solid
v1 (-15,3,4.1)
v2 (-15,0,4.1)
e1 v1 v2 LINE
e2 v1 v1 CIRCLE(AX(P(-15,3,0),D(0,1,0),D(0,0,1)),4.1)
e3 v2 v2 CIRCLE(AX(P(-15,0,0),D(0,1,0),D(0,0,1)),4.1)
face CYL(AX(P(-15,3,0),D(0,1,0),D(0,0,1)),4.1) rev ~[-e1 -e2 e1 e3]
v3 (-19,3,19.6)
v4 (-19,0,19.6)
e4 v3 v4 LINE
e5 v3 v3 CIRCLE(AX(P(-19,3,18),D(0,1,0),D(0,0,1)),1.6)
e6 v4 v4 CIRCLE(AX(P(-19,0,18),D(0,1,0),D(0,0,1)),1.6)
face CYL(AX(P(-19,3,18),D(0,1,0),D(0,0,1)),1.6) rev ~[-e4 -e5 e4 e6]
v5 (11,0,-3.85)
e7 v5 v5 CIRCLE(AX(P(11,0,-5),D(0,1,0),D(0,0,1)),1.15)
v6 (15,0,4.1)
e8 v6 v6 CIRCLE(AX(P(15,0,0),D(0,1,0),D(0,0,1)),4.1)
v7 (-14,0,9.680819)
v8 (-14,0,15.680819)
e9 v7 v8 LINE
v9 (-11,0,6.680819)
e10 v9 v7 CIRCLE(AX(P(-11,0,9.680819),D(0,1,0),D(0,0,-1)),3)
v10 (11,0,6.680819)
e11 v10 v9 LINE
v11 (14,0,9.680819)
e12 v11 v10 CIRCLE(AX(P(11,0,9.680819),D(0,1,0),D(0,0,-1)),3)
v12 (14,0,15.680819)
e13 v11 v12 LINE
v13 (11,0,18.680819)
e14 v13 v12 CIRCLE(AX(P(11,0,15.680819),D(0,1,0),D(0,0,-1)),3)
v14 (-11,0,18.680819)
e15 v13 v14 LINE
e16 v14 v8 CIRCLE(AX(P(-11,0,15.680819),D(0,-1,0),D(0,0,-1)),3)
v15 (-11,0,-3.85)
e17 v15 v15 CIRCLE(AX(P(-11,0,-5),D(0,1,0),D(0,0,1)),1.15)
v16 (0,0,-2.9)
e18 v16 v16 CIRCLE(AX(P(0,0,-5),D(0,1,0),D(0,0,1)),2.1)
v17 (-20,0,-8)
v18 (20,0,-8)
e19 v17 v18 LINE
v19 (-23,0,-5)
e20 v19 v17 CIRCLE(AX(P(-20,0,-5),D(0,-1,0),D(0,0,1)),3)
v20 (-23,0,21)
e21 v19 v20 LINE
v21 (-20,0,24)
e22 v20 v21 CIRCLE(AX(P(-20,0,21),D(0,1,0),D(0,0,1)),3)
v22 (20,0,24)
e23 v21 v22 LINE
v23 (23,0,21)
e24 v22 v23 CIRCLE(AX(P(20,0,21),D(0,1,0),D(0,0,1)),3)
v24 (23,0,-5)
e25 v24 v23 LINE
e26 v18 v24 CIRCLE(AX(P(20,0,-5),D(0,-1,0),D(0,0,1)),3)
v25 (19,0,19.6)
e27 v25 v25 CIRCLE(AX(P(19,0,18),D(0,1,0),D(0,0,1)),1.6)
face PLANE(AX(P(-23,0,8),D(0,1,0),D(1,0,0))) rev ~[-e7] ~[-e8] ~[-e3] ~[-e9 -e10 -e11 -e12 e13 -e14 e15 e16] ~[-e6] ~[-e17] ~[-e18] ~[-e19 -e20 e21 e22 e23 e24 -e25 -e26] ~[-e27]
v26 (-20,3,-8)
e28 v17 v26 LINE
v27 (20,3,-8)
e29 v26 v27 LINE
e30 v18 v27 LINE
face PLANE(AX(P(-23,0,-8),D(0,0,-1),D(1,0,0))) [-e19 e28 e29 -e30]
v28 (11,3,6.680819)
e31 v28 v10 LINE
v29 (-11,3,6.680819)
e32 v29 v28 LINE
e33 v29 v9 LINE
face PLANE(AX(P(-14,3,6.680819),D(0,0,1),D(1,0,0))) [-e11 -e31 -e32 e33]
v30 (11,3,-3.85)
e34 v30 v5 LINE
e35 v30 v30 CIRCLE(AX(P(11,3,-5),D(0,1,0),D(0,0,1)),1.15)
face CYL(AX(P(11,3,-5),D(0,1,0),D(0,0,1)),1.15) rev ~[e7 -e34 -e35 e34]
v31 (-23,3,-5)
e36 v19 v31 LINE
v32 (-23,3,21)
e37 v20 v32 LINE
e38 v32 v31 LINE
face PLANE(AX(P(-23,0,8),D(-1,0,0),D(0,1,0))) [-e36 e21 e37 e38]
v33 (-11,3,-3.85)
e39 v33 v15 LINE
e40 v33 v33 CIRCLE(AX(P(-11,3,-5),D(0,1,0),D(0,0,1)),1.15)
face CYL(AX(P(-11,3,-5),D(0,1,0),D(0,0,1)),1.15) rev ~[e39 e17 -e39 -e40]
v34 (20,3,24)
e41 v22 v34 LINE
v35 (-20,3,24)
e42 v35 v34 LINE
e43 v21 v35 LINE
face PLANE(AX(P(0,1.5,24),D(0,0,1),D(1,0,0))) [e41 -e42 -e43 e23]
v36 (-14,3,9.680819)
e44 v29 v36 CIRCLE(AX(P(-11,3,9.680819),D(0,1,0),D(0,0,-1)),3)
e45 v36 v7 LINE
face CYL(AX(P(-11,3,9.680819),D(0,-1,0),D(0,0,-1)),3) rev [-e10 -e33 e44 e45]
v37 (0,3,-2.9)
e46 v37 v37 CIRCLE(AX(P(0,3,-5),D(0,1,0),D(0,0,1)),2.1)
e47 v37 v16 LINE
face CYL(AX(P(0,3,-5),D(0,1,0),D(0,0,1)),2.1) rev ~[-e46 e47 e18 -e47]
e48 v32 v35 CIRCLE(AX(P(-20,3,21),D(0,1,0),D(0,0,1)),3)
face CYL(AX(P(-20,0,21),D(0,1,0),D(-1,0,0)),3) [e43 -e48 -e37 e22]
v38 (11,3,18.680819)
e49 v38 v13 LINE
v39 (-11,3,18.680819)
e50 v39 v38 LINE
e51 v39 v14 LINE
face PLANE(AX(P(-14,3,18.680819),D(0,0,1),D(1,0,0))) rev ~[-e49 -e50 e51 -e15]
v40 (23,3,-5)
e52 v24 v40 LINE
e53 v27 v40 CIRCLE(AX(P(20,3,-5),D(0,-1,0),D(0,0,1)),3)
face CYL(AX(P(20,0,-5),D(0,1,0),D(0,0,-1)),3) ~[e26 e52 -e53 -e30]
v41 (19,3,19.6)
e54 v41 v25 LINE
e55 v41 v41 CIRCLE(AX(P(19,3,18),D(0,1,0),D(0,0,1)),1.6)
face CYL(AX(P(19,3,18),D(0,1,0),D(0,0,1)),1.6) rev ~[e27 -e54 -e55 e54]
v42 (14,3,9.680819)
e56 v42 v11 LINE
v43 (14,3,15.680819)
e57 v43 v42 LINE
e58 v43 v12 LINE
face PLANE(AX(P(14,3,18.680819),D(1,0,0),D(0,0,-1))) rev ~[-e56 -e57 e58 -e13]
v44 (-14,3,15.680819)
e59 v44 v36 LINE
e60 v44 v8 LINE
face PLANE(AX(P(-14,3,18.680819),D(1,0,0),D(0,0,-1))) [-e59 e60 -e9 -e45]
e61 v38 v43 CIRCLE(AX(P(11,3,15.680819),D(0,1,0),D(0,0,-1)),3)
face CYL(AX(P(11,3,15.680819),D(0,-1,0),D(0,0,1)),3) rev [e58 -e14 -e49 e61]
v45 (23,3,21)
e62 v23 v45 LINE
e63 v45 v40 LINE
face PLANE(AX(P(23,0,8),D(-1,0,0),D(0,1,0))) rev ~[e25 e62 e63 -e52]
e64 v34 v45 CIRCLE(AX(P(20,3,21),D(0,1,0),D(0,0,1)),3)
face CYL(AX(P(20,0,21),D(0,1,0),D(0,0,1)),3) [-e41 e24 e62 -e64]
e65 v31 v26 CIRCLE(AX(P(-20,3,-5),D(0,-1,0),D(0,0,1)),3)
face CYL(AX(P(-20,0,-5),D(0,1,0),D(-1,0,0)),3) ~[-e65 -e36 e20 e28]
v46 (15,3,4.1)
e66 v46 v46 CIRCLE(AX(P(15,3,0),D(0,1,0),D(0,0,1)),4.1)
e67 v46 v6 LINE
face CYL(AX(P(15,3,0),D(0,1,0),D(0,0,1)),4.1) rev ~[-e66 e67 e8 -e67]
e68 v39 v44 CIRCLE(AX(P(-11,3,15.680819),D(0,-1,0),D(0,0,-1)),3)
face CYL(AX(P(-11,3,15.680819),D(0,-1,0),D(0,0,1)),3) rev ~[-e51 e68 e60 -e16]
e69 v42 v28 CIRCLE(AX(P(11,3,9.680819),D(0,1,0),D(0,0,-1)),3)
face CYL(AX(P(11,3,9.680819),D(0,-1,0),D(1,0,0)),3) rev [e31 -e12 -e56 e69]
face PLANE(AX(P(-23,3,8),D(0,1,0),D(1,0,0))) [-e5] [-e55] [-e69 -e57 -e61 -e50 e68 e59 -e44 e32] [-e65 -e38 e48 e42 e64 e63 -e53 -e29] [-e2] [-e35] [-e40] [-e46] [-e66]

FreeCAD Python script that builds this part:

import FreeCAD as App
import Part
import Sketcher
Q = App.Units.Quantity


def edges_at(feature, points):
    """Names of the edges that pass closest to the given points."""
    edges = feature.Shape.Edges
    near = lambda p: min(range(len(edges)), key=lambda i: edges[i].distToShape(Part.Vertex(*p))[0])
    return sorted({f"Edge{near(p) + 1}" for p in points})


def add_polygon(sketch, points):
    """Adds a closed chain of lines whose ends are joined by coincident constraints."""
    first, n = sketch.GeometryCount, len(points)
    for a, b in zip(points, points[1:] + points[:1]):
        sketch.addGeometry(Part.LineSegment(App.Vector(*a, 0), App.Vector(*b, 0)), False)
    for i in range(n):
        sketch.addConstraint(Sketcher.Constraint("Coincident", first + i, 2, first + (i + 1) % n, 1))

doc = App.newDocument("Part")
params = doc.addObject("Spreadsheet::Sheet", "Params")
for row, (alias, value) in enumerate([
    ("sketch1_width", "46 mm"),
    ("sketch1_height", "16 mm"),
    ("pad1_length", "3 mm"),
    ("sketch2_diameter", "8.2 mm"),
    ("sketch3_diameter", "8.2 mm"),
    ("sketch4_width", "46 mm"),
    ("sketch4_height", "3 mm"),
    ("pad2_length", "16 mm"),
    ("sketch5_diameter", "3.2 mm"),
    ("sketch6_diameter", "3.2 mm"),
    ("sketch7_diameter", "2.3 mm"),
    ("sketch8_diameter", "2.3 mm"),
    ("sketch9_diameter", "4.2 mm"),
    ("sketch10_width", "28 mm"),
    ("sketch10_height", "12 mm"),
    ("fillet_radius", "3 mm"),
], start=1):
    params.set(f"A{row}", alias)
    params.set(f"B{row}", "=" + value)
    params.setAlias(f"B{row}", alias)

body = doc.addObject("PartDesign::Body", "Body")

sketch1 = body.newObject("Sketcher::SketchObject", "Sketch")
sketch1.AttachmentSupport = (doc.getObject("XZ_Plane"), [""])
sketch1.MapMode = "FlatFace"
add_polygon(sketch1, [(-23, -8), (-23, 8), (23, 8), (23, -8)])
sketch1.addConstraint([
    Sketcher.Constraint("Vertical", 0),
    Sketcher.Constraint("Horizontal", 1),
    Sketcher.Constraint("Vertical", 2),
    Sketcher.Constraint("Horizontal", 3),
    Sketcher.Constraint("Symmetric", 0, 2, 2, 2, -1, 1),
    Sketcher.Constraint("DistanceX", 1, 1, 1, 2, Q("46 mm")),
    Sketcher.Constraint("DistanceY", 0, 1, 0, 2, Q("16 mm")),
])
sketch1.setExpression("Constraints[9]", "Params.sketch1_width")
sketch1.setExpression("Constraints[10]", "Params.sketch1_height")
pad1 = body.newObject("PartDesign::Pad", "Pad")
pad1.Profile = sketch1
pad1.setExpression("Length", "Params.pad1_length")
pad1.Reversed = True

sketch2 = body.newObject("Sketcher::SketchObject", "Sketch001")
sketch2.AttachmentSupport = (doc.getObject("XZ_Plane"), [""])
sketch2.MapMode = "FlatFace"
sketch2.AttachmentOffset = App.Placement(App.Vector(0, 0, -3), App.Rotation())
sketch2.addGeometry(Part.Circle(App.Vector(-15, 0, 0), App.Vector(0, 0, 1), 4.1), False)
sketch2.addConstraint([
    Sketcher.Constraint("PointOnObject", 0, 3, -1),
    Sketcher.Constraint("Diameter", 0, Q("8.2 mm")),
    Sketcher.Constraint("DistanceX", 0, 3, -1, 1, Q("15 mm")),
])
sketch2.setExpression("Constraints[1]", "Params.sketch2_diameter")
pocket1 = body.newObject("PartDesign::Pocket", "Pocket")
pocket1.Profile = sketch2
pocket1.Type = "UpToFirst"
pocket1.Reversed = True

sketch3 = body.newObject("Sketcher::SketchObject", "Sketch002")
sketch3.AttachmentSupport = (doc.getObject("XZ_Plane"), [""])
sketch3.MapMode = "FlatFace"
sketch3.AttachmentOffset = App.Placement(App.Vector(0, 0, -3), App.Rotation())
sketch3.addGeometry(Part.Circle(App.Vector(15, 0, 0), App.Vector(0, 0, 1), 4.1), False)
sketch3.addConstraint([
    Sketcher.Constraint("PointOnObject", 0, 3, -1),
    Sketcher.Constraint("Diameter", 0, Q("8.2 mm")),
    Sketcher.Constraint("DistanceX", -1, 1, 0, 3, Q("15 mm")),
])
sketch3.setExpression("Constraints[1]", "Params.sketch3_diameter")
pocket2 = body.newObject("PartDesign::Pocket", "Pocket001")
pocket2.Profile = sketch3
pocket2.Type = "UpToFirst"
pocket2.Reversed = True

sketch4 = body.newObject("Sketcher::SketchObject", "Sketch003")
sketch4.AttachmentSupport = (doc.getObject("XY_Plane"), [""])
sketch4.MapMode = "FlatFace"
sketch4.AttachmentOffset = App.Placement(App.Vector(0, 0, 8), App.Rotation())
add_polygon(sketch4, [(-23, 3), (-23, 0), (23, 0), (23, 3)])
sketch4.addConstraint([
    Sketcher.Constraint("Vertical", 0),
    Sketcher.Constraint("Horizontal", 1),
    Sketcher.Constraint("Vertical", 2),
    Sketcher.Constraint("Horizontal", 3),
    Sketcher.Constraint("Symmetric", 0, 2, 1, 2, -1, 1),
    Sketcher.Constraint("DistanceX", 1, 1, 1, 2, Q("46 mm")),
    Sketcher.Constraint("DistanceY", 0, 2, 0, 1, Q("3 mm")),
])
sketch4.setExpression("Constraints[9]", "Params.sketch4_width")
sketch4.setExpression("Constraints[10]", "Params.sketch4_height")
pad2 = body.newObject("PartDesign::Pad", "Pad001")
pad2.Profile = sketch4
pad2.setExpression("Length", "Params.pad2_length")

sketch5 = body.newObject("Sketcher::SketchObject", "Sketch004")
sketch5.AttachmentSupport = (doc.getObject("XZ_Plane"), [""])
sketch5.MapMode = "FlatFace"
sketch5.AttachmentOffset = App.Placement(App.Vector(0, 0, -3), App.Rotation())
sketch5.addGeometry(Part.Circle(App.Vector(-19, 18, 0), App.Vector(0, 0, 1), 1.6), False)
sketch5.addConstraint([
    Sketcher.Constraint("Diameter", 0, Q("3.2 mm")),
    Sketcher.Constraint("DistanceX", 0, 3, -1, 1, Q("19 mm")),
    Sketcher.Constraint("DistanceY", -1, 1, 0, 3, Q("18 mm")),
])
sketch5.setExpression("Constraints[0]", "Params.sketch5_diameter")
pocket3 = body.newObject("PartDesign::Pocket", "Pocket002")
pocket3.Profile = sketch5
pocket3.Type = "UpToFirst"
pocket3.Reversed = True

sketch6 = body.newObject("Sketcher::SketchObject", "Sketch005")
sketch6.AttachmentSupport = (doc.getObject("XZ_Plane"), [""])
sketch6.MapMode = "FlatFace"
sketch6.AttachmentOffset = App.Placement(App.Vector(0, 0, -3), App.Rotation())
sketch6.addGeometry(Part.Circle(App.Vector(19, 18, 0), App.Vector(0, 0, 1), 1.6), False)
sketch6.addConstraint([
    Sketcher.Constraint("Diameter", 0, Q("3.2 mm")),
    Sketcher.Constraint("DistanceX", -1, 1, 0, 3, Q("19 mm")),
    Sketcher.Constraint("DistanceY", -1, 1, 0, 3, Q("18 mm")),
])
sketch6.setExpression("Constraints[0]", "Params.sketch6_diameter")
pocket4 = body.newObject("PartDesign::Pocket", "Pocket003")
pocket4.Profile = sketch6
pocket4.Type = "UpToFirst"
pocket4.Reversed = True

sketch7 = body.newObject("Sketcher::SketchObject", "Sketch006")
sketch7.AttachmentSupport = (doc.getObject("XZ_Plane"), [""])
sketch7.MapMode = "FlatFace"
sketch7.AttachmentOffset = App.Placement(App.Vector(0, 0, -3), App.Rotation())
sketch7.addGeometry(Part.Circle(App.Vector(-11, -5, 0), App.Vector(0, 0, 1), 1.1), False)
sketch7.addConstraint([
    Sketcher.Constraint("Diameter", 0, Q("2.3 mm")),
    Sketcher.Constraint("DistanceX", 0, 3, -1, 1, Q("11 mm")),
    Sketcher.Constraint("DistanceY", 0, 3, -1, 1, Q("5 mm")),
])
sketch7.setExpression("Constraints[0]", "Params.sketch7_diameter")
pocket5 = body.newObject("PartDesign::Pocket", "Pocket004")
pocket5.Profile = sketch7
pocket5.Type = "UpToFirst"
pocket5.Reversed = True

sketch8 = body.newObject("Sketcher::SketchObject", "Sketch007")
sketch8.AttachmentSupport = (doc.getObject("XZ_Plane"), [""])
sketch8.MapMode = "FlatFace"
sketch8.AttachmentOffset = App.Placement(App.Vector(0, 0, -3), App.Rotation())
sketch8.addGeometry(Part.Circle(App.Vector(11, -5, 0), App.Vector(0, 0, 1), 1.1), False)
sketch8.addConstraint([
    Sketcher.Constraint("Diameter", 0, Q("2.3 mm")),
    Sketcher.Constraint("DistanceX", -1, 1, 0, 3, Q("11 mm")),
    Sketcher.Constraint("DistanceY", 0, 3, -1, 1, Q("5 mm")),
])
sketch8.setExpression("Constraints[0]", "Params.sketch8_diameter")
pocket6 = body.newObject("PartDesign::Pocket", "Pocket005")
pocket6.Profile = sketch8
pocket6.Type = "UpToFirst"
pocket6.Reversed = True

sketch9 = body.newObject("Sketcher::SketchObject", "Sketch008")
sketch9.AttachmentSupport = (doc.getObject("XZ_Plane"), [""])
sketch9.MapMode = "FlatFace"
sketch9.AttachmentOffset = App.Placement(App.Vector(0, 0, -3), App.Rotation())
sketch9.addGeometry(Part.Circle(App.Vector(0, -5, 0), App.Vector(0, 0, 1), 2.1), False)
sketch9.addConstraint([
    Sketcher.Constraint("PointOnObject", 0, 3, -2),
    Sketcher.Constraint("Diameter", 0, Q("4.2 mm")),
    Sketcher.Constraint("DistanceY", 0, 3, -1, 1, Q("5 mm")),
])
sketch9.setExpression("Constraints[1]", "Params.sketch9_diameter")
pocket7 = body.newObject("PartDesign::Pocket", "Pocket006")
pocket7.Profile = sketch9
pocket7.Type = "UpToFirst"
pocket7.Reversed = True

sketch10 = body.newObject("Sketcher::SketchObject", "Sketch009")
sketch10.AttachmentSupport = (doc.getObject("XZ_Plane"), [""])
sketch10.MapMode = "FlatFace"
sketch10.AttachmentOffset = App.Placement(App.Vector(0, 0, -3), App.Rotation())
add_polygon(sketch10, [(-14, 7), (-14, 19), (14, 19), (14, 7)])
sketch10.addConstraint([
    Sketcher.Constraint("Vertical", 0),
    Sketcher.Constraint("Horizontal", 1),
    Sketcher.Constraint("Vertical", 2),
    Sketcher.Constraint("Horizontal", 3),
    Sketcher.Constraint("DistanceX", 1, 1, 1, 2, Q("28 mm")),
    Sketcher.Constraint("DistanceY", 0, 1, 0, 2, Q("12 mm")),
    Sketcher.Constraint("DistanceX", 0, 2, -1, 1, Q("14 mm")),
    Sketcher.Constraint("DistanceY", -1, 1, 0, 2, Q("18.680819 mm")),
])
sketch10.setExpression("Constraints[8]", "Params.sketch10_width")
sketch10.setExpression("Constraints[9]", "Params.sketch10_height")
pocket8 = body.newObject("PartDesign::Pocket", "Pocket007")
pocket8.Profile = sketch10
pocket8.Type = "UpToFirst"
pocket8.Reversed = True
doc.recompute()

fillet = body.newObject("PartDesign::Fillet", "Fillet")
fillet.Base = (pocket8, edges_at(pocket8, [
    (-23, 1.5, 24),
    (23, 1.5, 24),
    (14, 1.5, 6.681),
    (14, 1.5, 18.681),
    (-14, 1.5, 18.681),
    (-14, 1.5, 6.681),
    (-23, 1.5, -8),
    (23, 1.5, -8),
]))
fillet.setExpression("Radius", "Params.fillet_radius")

doc.recompute()
